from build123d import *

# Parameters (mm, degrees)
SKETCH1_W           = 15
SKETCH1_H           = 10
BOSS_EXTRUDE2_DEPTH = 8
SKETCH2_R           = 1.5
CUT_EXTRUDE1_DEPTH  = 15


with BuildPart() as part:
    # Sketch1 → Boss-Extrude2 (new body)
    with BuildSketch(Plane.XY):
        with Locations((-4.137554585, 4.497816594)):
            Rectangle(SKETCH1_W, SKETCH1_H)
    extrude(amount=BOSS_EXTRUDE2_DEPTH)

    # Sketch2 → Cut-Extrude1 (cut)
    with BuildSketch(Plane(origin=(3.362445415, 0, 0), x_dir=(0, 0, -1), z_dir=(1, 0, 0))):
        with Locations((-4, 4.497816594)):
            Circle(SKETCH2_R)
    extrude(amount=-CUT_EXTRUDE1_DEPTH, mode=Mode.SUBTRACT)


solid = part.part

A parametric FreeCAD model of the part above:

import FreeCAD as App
import Part
import Sketcher
from FreeCAD import Vector
Q = App.Units.Quantity

doc = App.newDocument("Part")
body = doc.addObject("PartDesign::Body", "Body")

# Sketch on XY plane
sketch1 = body.newObject("Sketcher::SketchObject", "Sketch")
sketch1.AttachmentSupport = (doc.getObject("XY_Plane"), [""])
sketch1.MapMode = "FlatFace"
sketch1.addGeometry(Part.LineSegment(Vector(-12, 9, 0), Vector(-12, -1, 0)), False)
sketch1.addGeometry(Part.LineSegment(Vector(-12, -1, 0), Vector(3, -1, 0)), False)
sketch1.addGeometry(Part.LineSegment(Vector(3, -1, 0), Vector(3, 9, 0)), False)
sketch1.addGeometry(Part.LineSegment(Vector(3, 9, 0), Vector(-12, 9, 0)), False)
sketch1.addConstraint(Sketcher.Constraint("Coincident", 0, 2, 1, 1))
sketch1.addConstraint(Sketcher.Constraint("Coincident", 1, 2, 2, 1))
sketch1.addConstraint(Sketcher.Constraint("Coincident", 2, 2, 3, 1))
sketch1.addConstraint(Sketcher.Constraint("Coincident", 3, 2, 0, 1))
sketch1.addConstraint(Sketcher.Constraint("Vertical", 0))
sketch1.addConstraint(Sketcher.Constraint("Horizontal", 1))
sketch1.addConstraint(Sketcher.Constraint("Vertical", 2))
sketch1.addConstraint(Sketcher.Constraint("Horizontal", 3))
sketch1.addConstraint(Sketcher.Constraint("DistanceX", 1, 1, 1, 2, Q("15 mm")))
sketch1.addConstraint(Sketcher.Constraint("DistanceY", 0, 2, 0, 1, Q("10 mm")))
sketch1.addConstraint(Sketcher.Constraint("DistanceX", 0, 2, -1, 1, Q("11.637555 mm")))
sketch1.addConstraint(Sketcher.Constraint("DistanceY", 0, 2, -1, 1, Q("0.502183 mm")))
pad1 = body.newObject("PartDesign::Pad", "Pad")
pad1.Profile = sketch1
pad1.Length = 8

# Sketch on YZ plane
sketch2 = body.newObject("Sketcher::SketchObject", "Sketch001")
sketch2.AttachmentSupport = (doc.getObject("YZ_Plane"), [""])
sketch2.MapMode = "FlatFace"
sketch2.AttachmentOffset = App.Placement(Vector(0, 0, 3.362445), App.Rotation())
sketch2.addGeometry(Part.Circle(Vector(4.5, 4, 0), Vector(0, 0, 1), 1.5), False)
sketch2.addConstraint(Sketcher.Constraint("Diameter", 0, Q("3 mm")))
sketch2.addConstraint(Sketcher.Constraint("DistanceY", -1, 1, 0, 3, Q("4 mm")))
sketch2.addConstraint(Sketcher.Constraint("DistanceX", -1, 1, 0, 3, Q("4.497817 mm")))
pocket1 = body.newObject("PartDesign::Pocket", "Pocket")
pocket1.Profile = sketch2
pocket1.Length = 15

doc.recompute()
